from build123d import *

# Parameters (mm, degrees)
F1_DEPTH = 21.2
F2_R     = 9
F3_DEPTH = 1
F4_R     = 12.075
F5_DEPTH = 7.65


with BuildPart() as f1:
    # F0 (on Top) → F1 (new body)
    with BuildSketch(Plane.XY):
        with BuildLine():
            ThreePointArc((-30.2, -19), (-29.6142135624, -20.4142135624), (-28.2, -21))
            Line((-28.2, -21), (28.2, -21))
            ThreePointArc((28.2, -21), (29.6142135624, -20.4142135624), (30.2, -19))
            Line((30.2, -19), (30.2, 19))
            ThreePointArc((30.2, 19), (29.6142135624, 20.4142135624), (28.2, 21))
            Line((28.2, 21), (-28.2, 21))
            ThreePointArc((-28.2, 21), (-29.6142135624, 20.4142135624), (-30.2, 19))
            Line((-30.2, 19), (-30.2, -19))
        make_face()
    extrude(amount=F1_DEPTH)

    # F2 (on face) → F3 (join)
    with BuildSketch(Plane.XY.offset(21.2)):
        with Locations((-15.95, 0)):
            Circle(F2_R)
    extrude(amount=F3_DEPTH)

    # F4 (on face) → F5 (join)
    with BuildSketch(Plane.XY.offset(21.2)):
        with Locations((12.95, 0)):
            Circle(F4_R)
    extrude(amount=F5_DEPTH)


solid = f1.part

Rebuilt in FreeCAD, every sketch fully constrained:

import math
import FreeCAD as App
import Part
import Sketcher

V = App.Vector

doc = App.newDocument("Part")
body = doc.addObject("PartDesign::Body", "Body")

sketch1 = body.newObject("Sketcher::SketchObject", "Sketch")
sketch1.AttachmentSupport = (doc.getObject("XY_Plane"), [""])
sketch1.MapMode = "FlatFace"
sketch1.addGeometry(Part.ArcOfCircle(Part.Circle(V(-28.2, -19, 0), V(0, 0, 1), 2), math.radians(180), math.radians(270)), False)
sketch1.addGeometry(Part.LineSegment(V(-28.2, -21, 0), V(28.2, -21, 0)), False)
sketch1.addGeometry(Part.ArcOfCircle(Part.Circle(V(28.2, -19, 0), V(0, 0, 1), 2), math.radians(-90), math.radians(0)), False)
sketch1.addGeometry(Part.LineSegment(V(30.2, -19, 0), V(30.2, 19, 0)), False)
sketch1.addGeometry(Part.ArcOfCircle(Part.Circle(V(28.2, 19, 0), V(0, 0, 1), 2), math.radians(0), math.radians(90)), False)
sketch1.addGeometry(Part.LineSegment(V(28.2, 21, 0), V(-28.2, 21, 0)), False)
sketch1.addGeometry(Part.ArcOfCircle(Part.Circle(V(-28.2, 19, 0), V(0, 0, 1), 2), math.radians(90), math.radians(180)), False)
sketch1.addGeometry(Part.LineSegment(V(-30.2, 19, 0), V(-30.2, -19, 0)), False)
sketch1.addConstraint(Sketcher.Constraint("Tangent", 0, 2, 1, 1))
sketch1.addConstraint(Sketcher.Constraint("Tangent", 1, 2, 2, 1))
sketch1.addConstraint(Sketcher.Constraint("Tangent", 2, 2, 3, 1))
sketch1.addConstraint(Sketcher.Constraint("Tangent", 3, 2, 4, 1))
sketch1.addConstraint(Sketcher.Constraint("Tangent", 4, 2, 5, 1))
sketch1.addConstraint(Sketcher.Constraint("Tangent", 5, 2, 6, 1))
sketch1.addConstraint(Sketcher.Constraint("Tangent", 6, 2, 7, 1))
sketch1.addConstraint(Sketcher.Constraint("Tangent", 7, 2, 0, 1))
sketch1.addConstraint(Sketcher.Constraint("Horizontal", 1))
sketch1.addConstraint(Sketcher.Constraint("Vertical", 3))
sketch1.addConstraint(Sketcher.Constraint("Horizontal", 5))
sketch1.addConstraint(Sketcher.Constraint("Vertical", 7))
sketch1.addConstraint(Sketcher.Constraint("Equal", 0, 2))
sketch1.addConstraint(Sketcher.Constraint("Equal", 2, 4))
sketch1.addConstraint(Sketcher.Constraint("Equal", 4, 6))
sketch1.addConstraint(Sketcher.Constraint("Symmetric", 0, 3, 4, 3, -1, 1))
sketch1.addConstraint(Sketcher.Constraint("Radius", 0, 2.0))
sketch1.addConstraint(Sketcher.Constraint("DistanceY", 3, 1, 3, 2, 38.0))
sketch1.addConstraint(Sketcher.Constraint("DistanceX", 1, 1, 1, 2, 56.4))
pad1 = body.newObject("PartDesign::Pad", "Pad")
pad1.Profile = sketch1
pad1.Length = 21.2

sketch2 = body.newObject("Sketcher::SketchObject", "Sketch001")
sketch2.AttachmentSupport = (doc.getObject("XY_Plane"), [""])
sketch2.MapMode = "FlatFace"
sketch2.AttachmentOffset = App.Placement(V(0, 0, 21.2), App.Rotation())
sketch2.addGeometry(Part.Circle(V(-16, 0, 0), V(0, 0, 1), 9), False)
sketch2.addConstraint(Sketcher.Constraint("PointOnObject", 0, 3, -1))
sketch2.addConstraint(Sketcher.Constraint("Diameter", 0, 18.0))
sketch2.addConstraint(Sketcher.Constraint("DistanceX", 0, 3, -1, 1, 15.95))
pad2 = body.newObject("PartDesign::Pad", "Pad001")
pad2.Profile = sketch2
pad2.Length = 1

sketch3 = body.newObject("Sketcher::SketchObject", "Sketch002")
sketch3.AttachmentSupport = (doc.getObject("XY_Plane"), [""])
sketch3.MapMode = "FlatFace"
sketch3.AttachmentOffset = App.Placement(V(0, 0, 21.2), App.Rotation())
sketch3.addGeometry(Part.Circle(V(13, 0, 0), V(0, 0, 1), 12), False)
sketch3.addConstraint(Sketcher.Constraint("PointOnObject", 0, 3, -1))
sketch3.addConstraint(Sketcher.Constraint("Diameter", 0, 24.15))
sketch3.addConstraint(Sketcher.Constraint("DistanceX", -1, 1, 0, 3, 12.95))
pad3 = body.newObject("PartDesign::Pad", "Pad002")
pad3.Profile = sketch3
pad3.Length = 7.65

doc.recompute()
